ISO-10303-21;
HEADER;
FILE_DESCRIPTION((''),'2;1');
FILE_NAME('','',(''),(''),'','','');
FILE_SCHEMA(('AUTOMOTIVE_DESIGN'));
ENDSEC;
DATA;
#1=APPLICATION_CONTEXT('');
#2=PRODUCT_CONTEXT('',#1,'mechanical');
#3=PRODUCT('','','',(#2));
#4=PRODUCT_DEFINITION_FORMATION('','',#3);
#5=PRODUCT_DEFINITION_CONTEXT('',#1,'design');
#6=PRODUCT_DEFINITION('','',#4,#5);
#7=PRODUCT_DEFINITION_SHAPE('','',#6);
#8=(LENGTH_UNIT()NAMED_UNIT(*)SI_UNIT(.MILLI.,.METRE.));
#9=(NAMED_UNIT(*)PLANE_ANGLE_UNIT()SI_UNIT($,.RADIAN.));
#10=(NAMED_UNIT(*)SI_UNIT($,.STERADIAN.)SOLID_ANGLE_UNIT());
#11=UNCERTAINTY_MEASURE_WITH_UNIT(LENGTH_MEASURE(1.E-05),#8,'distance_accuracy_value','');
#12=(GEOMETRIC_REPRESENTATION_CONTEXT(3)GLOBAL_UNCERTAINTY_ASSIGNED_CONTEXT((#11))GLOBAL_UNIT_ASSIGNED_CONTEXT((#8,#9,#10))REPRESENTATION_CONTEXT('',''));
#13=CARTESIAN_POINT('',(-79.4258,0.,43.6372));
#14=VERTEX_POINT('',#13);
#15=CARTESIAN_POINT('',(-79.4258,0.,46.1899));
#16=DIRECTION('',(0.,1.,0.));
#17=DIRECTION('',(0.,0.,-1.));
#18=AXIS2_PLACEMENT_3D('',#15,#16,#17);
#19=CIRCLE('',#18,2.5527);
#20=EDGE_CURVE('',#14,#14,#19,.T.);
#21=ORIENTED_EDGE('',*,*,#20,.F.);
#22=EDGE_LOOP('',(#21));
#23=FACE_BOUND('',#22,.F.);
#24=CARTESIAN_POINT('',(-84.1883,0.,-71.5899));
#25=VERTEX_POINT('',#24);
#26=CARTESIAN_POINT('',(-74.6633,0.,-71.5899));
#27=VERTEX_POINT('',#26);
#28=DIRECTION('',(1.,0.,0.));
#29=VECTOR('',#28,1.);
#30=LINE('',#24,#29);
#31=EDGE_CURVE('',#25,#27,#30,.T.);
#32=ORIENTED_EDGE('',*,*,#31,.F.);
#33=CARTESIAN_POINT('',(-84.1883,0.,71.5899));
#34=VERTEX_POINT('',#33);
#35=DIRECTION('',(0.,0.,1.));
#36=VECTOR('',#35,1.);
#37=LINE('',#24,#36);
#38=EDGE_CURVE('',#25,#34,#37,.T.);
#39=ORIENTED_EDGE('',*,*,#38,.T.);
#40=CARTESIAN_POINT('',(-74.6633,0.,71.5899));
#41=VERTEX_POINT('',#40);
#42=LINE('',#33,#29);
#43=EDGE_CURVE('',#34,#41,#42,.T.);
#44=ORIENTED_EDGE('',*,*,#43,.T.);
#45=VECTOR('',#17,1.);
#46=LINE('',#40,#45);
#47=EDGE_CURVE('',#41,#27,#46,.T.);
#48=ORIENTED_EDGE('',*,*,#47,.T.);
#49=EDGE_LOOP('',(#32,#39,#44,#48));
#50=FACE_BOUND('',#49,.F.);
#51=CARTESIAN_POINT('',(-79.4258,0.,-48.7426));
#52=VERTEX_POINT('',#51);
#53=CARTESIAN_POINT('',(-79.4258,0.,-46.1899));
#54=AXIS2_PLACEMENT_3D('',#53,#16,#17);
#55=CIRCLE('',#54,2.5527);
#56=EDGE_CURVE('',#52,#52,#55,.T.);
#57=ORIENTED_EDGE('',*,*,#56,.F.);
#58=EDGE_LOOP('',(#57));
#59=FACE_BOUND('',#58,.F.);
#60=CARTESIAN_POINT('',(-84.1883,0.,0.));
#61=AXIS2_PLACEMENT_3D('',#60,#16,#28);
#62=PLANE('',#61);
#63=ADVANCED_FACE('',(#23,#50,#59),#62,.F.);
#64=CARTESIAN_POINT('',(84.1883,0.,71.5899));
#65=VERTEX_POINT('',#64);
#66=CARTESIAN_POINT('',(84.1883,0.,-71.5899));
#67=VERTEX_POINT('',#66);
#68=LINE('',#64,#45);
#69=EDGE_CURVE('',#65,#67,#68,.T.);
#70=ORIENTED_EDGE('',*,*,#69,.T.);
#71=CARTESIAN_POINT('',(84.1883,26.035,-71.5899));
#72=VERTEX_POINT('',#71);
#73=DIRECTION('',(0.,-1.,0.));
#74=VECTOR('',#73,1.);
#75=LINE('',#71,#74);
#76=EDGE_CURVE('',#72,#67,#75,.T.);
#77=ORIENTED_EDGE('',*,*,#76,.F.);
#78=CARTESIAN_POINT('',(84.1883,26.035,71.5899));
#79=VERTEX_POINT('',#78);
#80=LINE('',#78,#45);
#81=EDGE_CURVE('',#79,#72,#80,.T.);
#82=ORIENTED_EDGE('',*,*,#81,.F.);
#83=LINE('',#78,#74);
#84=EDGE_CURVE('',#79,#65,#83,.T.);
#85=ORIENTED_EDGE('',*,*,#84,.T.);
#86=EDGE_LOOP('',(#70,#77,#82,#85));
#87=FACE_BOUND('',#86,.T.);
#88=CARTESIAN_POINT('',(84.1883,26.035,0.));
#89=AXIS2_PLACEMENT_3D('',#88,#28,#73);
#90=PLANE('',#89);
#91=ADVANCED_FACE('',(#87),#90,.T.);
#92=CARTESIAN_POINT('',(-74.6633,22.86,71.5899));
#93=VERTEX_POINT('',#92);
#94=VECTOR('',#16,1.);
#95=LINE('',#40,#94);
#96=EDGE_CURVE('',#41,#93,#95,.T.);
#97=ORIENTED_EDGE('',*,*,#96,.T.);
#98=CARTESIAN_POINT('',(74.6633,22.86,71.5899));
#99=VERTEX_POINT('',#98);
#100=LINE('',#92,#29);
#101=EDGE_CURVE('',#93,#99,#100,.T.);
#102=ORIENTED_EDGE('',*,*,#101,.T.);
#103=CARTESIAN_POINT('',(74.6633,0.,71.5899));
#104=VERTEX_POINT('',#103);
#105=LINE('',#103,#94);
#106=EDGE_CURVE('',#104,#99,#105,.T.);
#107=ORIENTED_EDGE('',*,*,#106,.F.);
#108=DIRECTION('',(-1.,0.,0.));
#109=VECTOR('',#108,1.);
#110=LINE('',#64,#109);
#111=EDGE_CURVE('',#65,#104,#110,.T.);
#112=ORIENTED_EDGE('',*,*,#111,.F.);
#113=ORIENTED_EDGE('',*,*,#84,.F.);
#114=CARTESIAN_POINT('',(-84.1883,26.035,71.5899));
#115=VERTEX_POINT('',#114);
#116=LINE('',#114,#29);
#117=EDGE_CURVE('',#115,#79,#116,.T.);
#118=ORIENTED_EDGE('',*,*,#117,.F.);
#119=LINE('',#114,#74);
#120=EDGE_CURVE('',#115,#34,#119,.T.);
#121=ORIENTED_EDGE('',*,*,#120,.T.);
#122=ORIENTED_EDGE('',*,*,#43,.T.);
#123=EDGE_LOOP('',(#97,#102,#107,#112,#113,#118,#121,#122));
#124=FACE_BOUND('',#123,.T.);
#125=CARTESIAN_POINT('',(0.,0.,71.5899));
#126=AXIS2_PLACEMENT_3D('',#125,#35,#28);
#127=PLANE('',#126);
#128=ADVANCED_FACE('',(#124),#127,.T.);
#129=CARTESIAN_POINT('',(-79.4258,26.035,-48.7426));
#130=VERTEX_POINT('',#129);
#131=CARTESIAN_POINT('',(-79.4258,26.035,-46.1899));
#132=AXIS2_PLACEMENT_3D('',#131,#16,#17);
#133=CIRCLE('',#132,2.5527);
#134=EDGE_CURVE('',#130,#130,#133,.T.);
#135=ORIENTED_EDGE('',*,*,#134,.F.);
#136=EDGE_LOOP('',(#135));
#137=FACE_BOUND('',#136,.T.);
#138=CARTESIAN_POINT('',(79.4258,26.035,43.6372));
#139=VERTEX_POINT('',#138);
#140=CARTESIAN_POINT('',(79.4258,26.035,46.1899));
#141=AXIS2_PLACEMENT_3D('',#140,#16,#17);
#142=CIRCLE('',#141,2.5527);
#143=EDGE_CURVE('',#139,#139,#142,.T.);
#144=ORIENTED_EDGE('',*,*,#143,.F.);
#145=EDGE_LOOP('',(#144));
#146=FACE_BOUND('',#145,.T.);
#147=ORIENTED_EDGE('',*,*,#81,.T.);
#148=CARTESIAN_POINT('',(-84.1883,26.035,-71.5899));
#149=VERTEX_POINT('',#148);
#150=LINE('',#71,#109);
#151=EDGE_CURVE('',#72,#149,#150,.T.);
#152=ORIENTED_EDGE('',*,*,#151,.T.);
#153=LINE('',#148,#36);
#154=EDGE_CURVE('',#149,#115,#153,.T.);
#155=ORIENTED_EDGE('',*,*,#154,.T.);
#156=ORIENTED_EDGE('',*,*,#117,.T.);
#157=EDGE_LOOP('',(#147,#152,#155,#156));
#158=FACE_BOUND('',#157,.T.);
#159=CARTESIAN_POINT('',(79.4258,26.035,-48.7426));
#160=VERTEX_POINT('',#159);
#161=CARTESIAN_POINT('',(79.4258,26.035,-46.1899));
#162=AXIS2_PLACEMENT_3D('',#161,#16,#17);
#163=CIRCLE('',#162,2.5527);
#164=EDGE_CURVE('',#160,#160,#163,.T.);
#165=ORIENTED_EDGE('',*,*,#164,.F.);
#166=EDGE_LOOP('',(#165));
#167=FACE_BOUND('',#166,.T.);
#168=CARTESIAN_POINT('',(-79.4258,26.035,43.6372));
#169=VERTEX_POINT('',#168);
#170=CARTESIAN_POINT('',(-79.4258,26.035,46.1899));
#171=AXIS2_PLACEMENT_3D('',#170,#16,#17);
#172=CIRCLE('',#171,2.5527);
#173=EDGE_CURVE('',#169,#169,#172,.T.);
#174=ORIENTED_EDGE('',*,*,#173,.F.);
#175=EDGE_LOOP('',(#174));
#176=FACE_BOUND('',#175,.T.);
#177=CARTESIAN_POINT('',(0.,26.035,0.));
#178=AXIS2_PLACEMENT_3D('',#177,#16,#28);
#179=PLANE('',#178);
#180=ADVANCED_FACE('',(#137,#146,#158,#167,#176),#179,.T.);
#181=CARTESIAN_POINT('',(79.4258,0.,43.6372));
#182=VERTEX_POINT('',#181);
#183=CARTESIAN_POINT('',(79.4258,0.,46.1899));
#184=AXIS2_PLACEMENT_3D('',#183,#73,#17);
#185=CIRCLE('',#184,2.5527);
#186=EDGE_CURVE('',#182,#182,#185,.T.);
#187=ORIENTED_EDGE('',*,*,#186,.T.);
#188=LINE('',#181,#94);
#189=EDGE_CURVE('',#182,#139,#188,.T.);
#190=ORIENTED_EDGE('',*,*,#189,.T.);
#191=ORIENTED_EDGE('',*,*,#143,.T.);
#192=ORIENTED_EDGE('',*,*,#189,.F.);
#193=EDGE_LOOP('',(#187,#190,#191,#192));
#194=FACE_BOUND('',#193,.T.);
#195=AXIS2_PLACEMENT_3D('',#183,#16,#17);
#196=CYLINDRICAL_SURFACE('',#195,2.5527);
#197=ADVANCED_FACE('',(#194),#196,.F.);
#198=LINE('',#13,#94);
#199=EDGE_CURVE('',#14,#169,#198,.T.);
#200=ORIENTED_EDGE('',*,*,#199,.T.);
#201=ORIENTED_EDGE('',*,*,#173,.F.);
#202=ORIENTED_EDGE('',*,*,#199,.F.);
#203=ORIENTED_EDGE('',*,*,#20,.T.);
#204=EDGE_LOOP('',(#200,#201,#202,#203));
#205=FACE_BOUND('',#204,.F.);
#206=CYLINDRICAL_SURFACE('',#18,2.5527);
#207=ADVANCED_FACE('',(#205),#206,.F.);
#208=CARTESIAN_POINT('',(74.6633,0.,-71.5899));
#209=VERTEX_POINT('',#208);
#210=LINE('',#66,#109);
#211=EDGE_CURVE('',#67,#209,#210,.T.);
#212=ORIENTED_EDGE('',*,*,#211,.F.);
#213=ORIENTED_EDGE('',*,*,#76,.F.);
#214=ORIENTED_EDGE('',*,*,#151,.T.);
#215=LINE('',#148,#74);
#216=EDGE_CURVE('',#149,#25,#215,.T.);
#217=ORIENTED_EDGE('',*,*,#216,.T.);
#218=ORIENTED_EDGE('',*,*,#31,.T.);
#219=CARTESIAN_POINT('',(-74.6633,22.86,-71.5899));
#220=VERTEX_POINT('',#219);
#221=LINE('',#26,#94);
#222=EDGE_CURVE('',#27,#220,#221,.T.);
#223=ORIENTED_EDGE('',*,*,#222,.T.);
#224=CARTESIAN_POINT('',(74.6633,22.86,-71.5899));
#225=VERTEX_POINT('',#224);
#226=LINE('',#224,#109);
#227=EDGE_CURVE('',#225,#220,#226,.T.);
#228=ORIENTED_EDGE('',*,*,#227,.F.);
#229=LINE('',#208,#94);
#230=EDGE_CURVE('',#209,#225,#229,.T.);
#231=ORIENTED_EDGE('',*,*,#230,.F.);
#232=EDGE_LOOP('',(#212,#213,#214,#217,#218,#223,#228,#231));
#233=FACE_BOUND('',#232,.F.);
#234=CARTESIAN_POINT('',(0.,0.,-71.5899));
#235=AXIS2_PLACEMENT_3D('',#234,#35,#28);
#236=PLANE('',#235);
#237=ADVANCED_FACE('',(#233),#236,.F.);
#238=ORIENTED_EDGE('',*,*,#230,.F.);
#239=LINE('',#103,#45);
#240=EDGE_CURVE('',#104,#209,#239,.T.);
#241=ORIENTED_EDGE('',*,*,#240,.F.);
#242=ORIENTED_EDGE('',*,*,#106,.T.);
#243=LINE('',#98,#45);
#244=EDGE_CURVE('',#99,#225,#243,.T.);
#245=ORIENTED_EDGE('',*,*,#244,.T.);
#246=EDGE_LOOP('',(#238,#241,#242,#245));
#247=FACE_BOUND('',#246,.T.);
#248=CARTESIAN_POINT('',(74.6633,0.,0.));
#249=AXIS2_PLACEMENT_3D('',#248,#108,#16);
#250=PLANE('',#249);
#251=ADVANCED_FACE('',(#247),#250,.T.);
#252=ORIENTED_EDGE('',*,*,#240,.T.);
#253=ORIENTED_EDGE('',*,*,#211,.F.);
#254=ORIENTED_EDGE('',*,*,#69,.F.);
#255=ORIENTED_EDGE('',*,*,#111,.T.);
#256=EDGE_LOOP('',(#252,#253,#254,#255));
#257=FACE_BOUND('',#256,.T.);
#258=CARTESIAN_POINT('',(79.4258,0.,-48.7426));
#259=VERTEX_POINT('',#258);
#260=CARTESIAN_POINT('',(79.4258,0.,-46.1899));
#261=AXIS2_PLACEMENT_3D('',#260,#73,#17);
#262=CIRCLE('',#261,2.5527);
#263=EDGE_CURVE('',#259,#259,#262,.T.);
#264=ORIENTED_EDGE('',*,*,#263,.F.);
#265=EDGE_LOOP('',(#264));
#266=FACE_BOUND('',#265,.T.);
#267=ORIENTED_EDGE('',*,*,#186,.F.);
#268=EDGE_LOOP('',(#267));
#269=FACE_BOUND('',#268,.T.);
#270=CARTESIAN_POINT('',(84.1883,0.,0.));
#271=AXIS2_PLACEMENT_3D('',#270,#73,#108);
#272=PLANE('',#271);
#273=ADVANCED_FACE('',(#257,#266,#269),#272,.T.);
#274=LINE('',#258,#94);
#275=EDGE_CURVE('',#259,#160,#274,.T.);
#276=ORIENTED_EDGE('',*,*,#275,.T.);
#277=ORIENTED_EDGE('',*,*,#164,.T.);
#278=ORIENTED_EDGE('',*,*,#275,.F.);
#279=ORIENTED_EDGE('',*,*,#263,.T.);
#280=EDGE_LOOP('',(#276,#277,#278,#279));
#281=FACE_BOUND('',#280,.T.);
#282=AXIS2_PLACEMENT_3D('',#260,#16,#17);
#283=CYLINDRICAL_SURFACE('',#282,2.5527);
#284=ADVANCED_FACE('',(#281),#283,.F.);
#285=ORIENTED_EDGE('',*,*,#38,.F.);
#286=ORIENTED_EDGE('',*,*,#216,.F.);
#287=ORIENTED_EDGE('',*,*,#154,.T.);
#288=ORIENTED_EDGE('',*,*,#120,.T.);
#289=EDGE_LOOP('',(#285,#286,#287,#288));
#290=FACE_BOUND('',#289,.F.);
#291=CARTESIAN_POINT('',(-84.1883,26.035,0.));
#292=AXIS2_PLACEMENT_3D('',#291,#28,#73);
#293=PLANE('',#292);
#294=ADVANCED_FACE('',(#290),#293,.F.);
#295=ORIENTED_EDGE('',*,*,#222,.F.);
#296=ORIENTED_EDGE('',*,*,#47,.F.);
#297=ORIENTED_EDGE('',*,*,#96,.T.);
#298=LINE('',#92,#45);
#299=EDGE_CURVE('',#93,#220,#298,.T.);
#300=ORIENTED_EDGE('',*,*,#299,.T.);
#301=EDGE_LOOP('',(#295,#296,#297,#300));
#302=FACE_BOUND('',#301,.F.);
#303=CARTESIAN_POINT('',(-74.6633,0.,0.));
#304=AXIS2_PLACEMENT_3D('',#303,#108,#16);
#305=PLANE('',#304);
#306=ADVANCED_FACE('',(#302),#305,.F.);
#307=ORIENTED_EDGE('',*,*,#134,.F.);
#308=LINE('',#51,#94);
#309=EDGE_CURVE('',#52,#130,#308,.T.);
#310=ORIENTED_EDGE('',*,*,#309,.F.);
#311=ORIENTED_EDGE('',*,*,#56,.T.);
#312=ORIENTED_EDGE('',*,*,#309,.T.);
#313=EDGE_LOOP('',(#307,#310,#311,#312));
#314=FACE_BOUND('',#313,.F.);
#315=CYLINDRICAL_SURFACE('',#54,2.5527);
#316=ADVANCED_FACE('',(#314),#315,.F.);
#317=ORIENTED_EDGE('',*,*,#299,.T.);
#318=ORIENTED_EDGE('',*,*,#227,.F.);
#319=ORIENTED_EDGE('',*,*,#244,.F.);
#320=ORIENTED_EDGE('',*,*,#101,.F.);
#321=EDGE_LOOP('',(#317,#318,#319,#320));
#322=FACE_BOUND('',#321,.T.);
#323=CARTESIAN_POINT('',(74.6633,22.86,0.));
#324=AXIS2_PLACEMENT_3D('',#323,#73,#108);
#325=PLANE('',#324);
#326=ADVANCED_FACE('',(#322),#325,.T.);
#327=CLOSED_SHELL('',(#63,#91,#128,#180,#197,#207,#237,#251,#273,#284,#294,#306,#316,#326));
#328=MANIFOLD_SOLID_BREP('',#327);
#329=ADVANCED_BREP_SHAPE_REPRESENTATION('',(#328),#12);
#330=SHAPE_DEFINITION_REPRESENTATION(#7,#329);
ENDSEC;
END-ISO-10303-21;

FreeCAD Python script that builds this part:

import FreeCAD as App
import Part
import Sketcher
Q = App.Units.Quantity


def add_polygon(sketch, points):
    """Adds a closed chain of lines whose ends are joined by coincident constraints."""
    first, n = sketch.GeometryCount, len(points)
    for a, b in zip(points, points[1:] + points[:1]):
        sketch.addGeometry(Part.LineSegment(App.Vector(*a, 0), App.Vector(*b, 0)), False)
    for i in range(n):
        sketch.addConstraint(Sketcher.Constraint("Coincident", first + i, 2, first + (i + 1) % n, 1))

doc = App.newDocument("Part")
body = doc.addObject("PartDesign::Body", "Body")

# Sketch on XY plane
sketch1 = doc.addObject("Sketcher::SketchObject", "Sketch")
body.addObject(sketch1)
sketch1.AttachmentSupport = (doc.XY_Plane, [""])
sketch1.MapMode = "FlatFace"
add_polygon(sketch1, [(84, 26), (-84, 26), (-84, 0), (-75, 0), (-75, 23), (75, 23), (75, 0), (84, 0)])  # lines 0-7
sketch1.addConstraint([
    Sketcher.Constraint("Horizontal", 0),
    Sketcher.Constraint("Vertical", 1),
    Sketcher.Constraint("Horizontal", 2),
    Sketcher.Constraint("Vertical", 3),
    Sketcher.Constraint("Horizontal", 4),
    Sketcher.Constraint("Vertical", 5),
    Sketcher.Constraint("Horizontal", 6),
    Sketcher.Constraint("Vertical", 7),
    Sketcher.Constraint("Symmetric", 2, 2, 5, 2, -1, 1),
    Sketcher.Constraint("Symmetric", 1, 2, 6, 2, -2),
    Sketcher.Constraint("DistanceY", 3, 1, 3, 2, Q("0.9 in")),
    Sketcher.Constraint("DistanceX", 2, 1, 2, 2, Q("0.375 in")),
    Sketcher.Constraint("DistanceY", 3, 2, 0, 2, Q("0.125 in")),
    Sketcher.Constraint("DistanceX", 2, 2, -1, 1, Q("2.9395 in")),
])
pad1 = doc.addObject("PartDesign::Pad", "Pad")
body.addObject(pad1)
pad1.Profile = sketch1
pad1.Length = Q("5.637 in")
pad1.Midplane = True

# Sketch on XZ plane
sketch2 = doc.addObject("Sketcher::SketchObject", "Sketch001")
body.addObject(sketch2)
sketch2.AttachmentSupport = (doc.XZ_Plane, [""])
sketch2.MapMode = "FlatFace"
sketch2.addGeometry([
    Part.Circle(App.Vector(-79.4, -46.2, 0), App.Vector(0, 0, 1), 2.6),
    Part.Circle(App.Vector(-79.4, 46.2, 0), App.Vector(0, 0, 1), 2.6),
], False)
sketch2.addConstraint([
    Sketcher.Constraint("Equal", 0, 1),
    Sketcher.Constraint("Symmetric", 0, 3, 1, 3, -1),
    Sketcher.Constraint("Diameter", 0, Q("0.201 in")),
    Sketcher.Constraint("DistanceX", 0, 3, -1, 1, Q("3.127 in")),
    Sketcher.Constraint("DistanceY", 0, 3, 1, 3, Q("3.637 in")),
])
doc.recompute()
hole = doc.addObject("PartDesign::Hole", "Hole")
body.addObject(hole)
hole.Profile = sketch2
hole.ThreadType = "None"
hole.Diameter = Q("0.201 in")
hole.DepthType = "ThroughAll"
doc.recompute()

mirrored = doc.addObject("PartDesign::Mirrored", "Mirrored")
body.addObject(mirrored)
mirrored.Originals = [hole]
mirrored.MirrorPlane = (doc.YZ_Plane, [""])
body.Tip = mirrored

doc.recompute()
